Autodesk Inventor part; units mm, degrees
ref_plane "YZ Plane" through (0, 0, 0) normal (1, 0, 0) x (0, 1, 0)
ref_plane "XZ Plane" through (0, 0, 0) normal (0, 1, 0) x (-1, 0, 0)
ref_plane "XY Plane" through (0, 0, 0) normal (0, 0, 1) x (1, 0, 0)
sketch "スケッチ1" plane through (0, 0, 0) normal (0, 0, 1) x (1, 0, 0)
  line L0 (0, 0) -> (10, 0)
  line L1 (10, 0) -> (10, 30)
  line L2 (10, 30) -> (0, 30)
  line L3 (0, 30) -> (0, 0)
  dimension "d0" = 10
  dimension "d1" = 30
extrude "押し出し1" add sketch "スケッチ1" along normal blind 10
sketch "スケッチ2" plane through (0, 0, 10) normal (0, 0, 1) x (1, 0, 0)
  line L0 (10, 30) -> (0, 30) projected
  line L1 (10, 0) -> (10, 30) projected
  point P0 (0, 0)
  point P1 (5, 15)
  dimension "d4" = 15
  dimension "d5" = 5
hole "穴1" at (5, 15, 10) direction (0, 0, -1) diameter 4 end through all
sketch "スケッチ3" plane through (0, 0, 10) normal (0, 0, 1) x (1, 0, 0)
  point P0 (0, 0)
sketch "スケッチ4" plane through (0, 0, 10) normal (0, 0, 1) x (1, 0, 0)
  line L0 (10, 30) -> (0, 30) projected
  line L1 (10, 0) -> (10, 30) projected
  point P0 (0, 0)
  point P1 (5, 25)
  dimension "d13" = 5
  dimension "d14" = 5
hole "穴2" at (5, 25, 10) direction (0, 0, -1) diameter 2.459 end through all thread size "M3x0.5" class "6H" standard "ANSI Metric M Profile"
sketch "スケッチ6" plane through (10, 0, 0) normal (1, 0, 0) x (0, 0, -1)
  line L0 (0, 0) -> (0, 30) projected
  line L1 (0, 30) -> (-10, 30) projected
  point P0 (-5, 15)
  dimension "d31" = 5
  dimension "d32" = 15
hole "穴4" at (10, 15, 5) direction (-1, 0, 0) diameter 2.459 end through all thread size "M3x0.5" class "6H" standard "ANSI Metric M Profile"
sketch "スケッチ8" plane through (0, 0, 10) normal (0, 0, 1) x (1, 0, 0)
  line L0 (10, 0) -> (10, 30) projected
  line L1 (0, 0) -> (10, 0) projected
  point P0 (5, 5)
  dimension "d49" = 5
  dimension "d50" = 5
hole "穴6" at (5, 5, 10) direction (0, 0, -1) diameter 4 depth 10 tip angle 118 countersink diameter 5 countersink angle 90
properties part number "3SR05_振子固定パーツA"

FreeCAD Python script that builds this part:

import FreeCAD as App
import Part
import Sketcher
from FreeCAD import Vector

doc = App.newDocument("Part")
body = doc.addObject("PartDesign::Body", "Body")

sketch1 = doc.addObject("Sketcher::SketchObject", "Sketch")
body.addObject(sketch1)
sketch1.AttachmentSupport = (doc.XY_Plane, [""])
sketch1.MapMode = "FlatFace"
sketch1.addGeometry([
    Part.LineSegment(Vector(0, 30, 0), Vector(0, 0, 0)),
    Part.LineSegment(Vector(0, 0, 0), Vector(10, 0, 0)),
    Part.LineSegment(Vector(10, 0, 0), Vector(10, 30, 0)),
    Part.LineSegment(Vector(10, 30, 0), Vector(0, 30, 0)),
], False)
sketch1.addConstraint([
    Sketcher.Constraint("Coincident", 0, 2, 1, 1),
    Sketcher.Constraint("Coincident", 1, 2, 2, 1),
    Sketcher.Constraint("Coincident", 2, 2, 3, 1),
    Sketcher.Constraint("Coincident", 3, 2, 0, 1),
    Sketcher.Constraint("Vertical", 0),
    Sketcher.Constraint("Horizontal", 1),
    Sketcher.Constraint("Vertical", 2),
    Sketcher.Constraint("Horizontal", 3),
    Sketcher.Constraint("Coincident", 0, 2, -1, 1),
    Sketcher.Constraint("DistanceX", 1, 1, 1, 2, 10.0),
    Sketcher.Constraint("DistanceY", 0, 2, 0, 1, 30.0),
])
pad1 = doc.addObject("PartDesign::Pad", "Pad")
body.addObject(pad1)
pad1.Profile = sketch1
pad1.Length = 10

sketch2 = doc.addObject("Sketcher::SketchObject", "Sketch001")
body.addObject(sketch2)
sketch2.AttachmentSupport = (doc.XY_Plane, [""])
sketch2.MapMode = "FlatFace"
sketch2.AttachmentOffset = App.Placement(Vector(0, 0, 10), App.Rotation())
sketch2.addGeometry(Part.Circle(Vector(5, 15, 0), Vector(0, 0, 1), 2), False)
sketch2.addConstraint([
    Sketcher.Constraint("Diameter", 0, 4.0),
    Sketcher.Constraint("DistanceX", -1, 1, 0, 3, 5.0),
    Sketcher.Constraint("DistanceY", -1, 1, 0, 3, 15.0),
])
doc.recompute()
hole = doc.addObject("PartDesign::Hole", "Hole")
body.addObject(hole)
hole.Profile = sketch2
hole.ThreadType = "None"
hole.Diameter = 4
hole.DepthType = "ThroughAll"

sketch3 = doc.addObject("Sketcher::SketchObject", "Sketch002")
body.addObject(sketch3)
sketch3.AttachmentSupport = (doc.XY_Plane, [""])
sketch3.MapMode = "FlatFace"
sketch3.AttachmentOffset = App.Placement(Vector(0, 0, 10), App.Rotation())
sketch3.addGeometry(Part.Circle(Vector(5, 25, 0), Vector(0, 0, 1), 1.2), False)
sketch3.addConstraint([
    Sketcher.Constraint("Diameter", 0, 2.459),
    Sketcher.Constraint("DistanceX", -1, 1, 0, 3, 5.0),
    Sketcher.Constraint("DistanceY", -1, 1, 0, 3, 25.0),
])
doc.recompute()
hole2 = doc.addObject("PartDesign::Hole", "Hole001")
body.addObject(hole2)
hole2.Profile = sketch3
hole2.ThreadType = "None"
hole2.Diameter = 2.459
hole2.DepthType = "ThroughAll"

sketch4 = doc.addObject("Sketcher::SketchObject", "Sketch003")
body.addObject(sketch4)
sketch4.AttachmentSupport = (doc.YZ_Plane, [""])
sketch4.MapMode = "FlatFace"
sketch4.AttachmentOffset = App.Placement(Vector(0, 0, 10), App.Rotation())
sketch4.addGeometry(Part.Circle(Vector(15, 5, 0), Vector(0, 0, 1), 1.2), False)
sketch4.addConstraint([
    Sketcher.Constraint("Diameter", 0, 2.459),
    Sketcher.Constraint("DistanceX", -1, 1, 0, 3, 15.0),
    Sketcher.Constraint("DistanceY", -1, 1, 0, 3, 5.0),
])
doc.recompute()
hole3 = doc.addObject("PartDesign::Hole", "Hole002")
body.addObject(hole3)
hole3.Profile = sketch4
hole3.ThreadType = "None"
hole3.Diameter = 2.459
hole3.DepthType = "ThroughAll"

sketch5 = doc.addObject("Sketcher::SketchObject", "Sketch004")
body.addObject(sketch5)
sketch5.AttachmentSupport = (doc.XY_Plane, [""])
sketch5.MapMode = "FlatFace"
sketch5.AttachmentOffset = App.Placement(Vector(0, 0, 10), App.Rotation())
sketch5.addGeometry(Part.Circle(Vector(5, 5, 0), Vector(0, 0, 1), 2), False)
sketch5.addConstraint([
    Sketcher.Constraint("Diameter", 0, 4.0),
    Sketcher.Constraint("DistanceX", -1, 1, 0, 3, 5.0),
    Sketcher.Constraint("DistanceY", -1, 1, 0, 3, 5.0),
])
doc.recompute()
hole4 = doc.addObject("PartDesign::Hole", "Hole003")
body.addObject(hole4)
hole4.Profile = sketch5
hole4.ThreadType = "None"
hole4.Diameter = 4
hole4.DepthType = "Dimension"
hole4.Depth = 10
hole4.DrillPoint = "Angled"
hole4.DrillPointAngle = 118
hole4.HoleCutType = "Countersink"
hole4.HoleCutDiameter = 5
hole4.HoleCutCountersinkAngle = 90

doc.recompute()
